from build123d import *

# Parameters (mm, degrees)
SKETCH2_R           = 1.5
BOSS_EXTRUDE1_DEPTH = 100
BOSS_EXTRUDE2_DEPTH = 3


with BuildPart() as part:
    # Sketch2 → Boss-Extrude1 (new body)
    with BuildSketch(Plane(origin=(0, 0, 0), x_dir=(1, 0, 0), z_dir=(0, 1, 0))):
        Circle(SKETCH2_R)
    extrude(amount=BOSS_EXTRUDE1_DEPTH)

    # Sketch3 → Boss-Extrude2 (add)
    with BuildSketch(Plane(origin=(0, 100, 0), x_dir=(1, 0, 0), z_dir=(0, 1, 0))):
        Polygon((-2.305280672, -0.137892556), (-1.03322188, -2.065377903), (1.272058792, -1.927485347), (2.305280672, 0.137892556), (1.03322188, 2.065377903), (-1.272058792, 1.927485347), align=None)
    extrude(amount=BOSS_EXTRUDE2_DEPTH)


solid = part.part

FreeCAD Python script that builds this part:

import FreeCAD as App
import Part
import Sketcher

V = App.Vector


def add_polygon(sketch, points):
    """Adds a closed chain of lines whose ends are joined by coincident constraints."""
    first, n = sketch.GeometryCount, len(points)
    for a, b in zip(points, points[1:] + points[:1]):
        sketch.addGeometry(Part.LineSegment(App.Vector(*a, 0), App.Vector(*b, 0)), False)
    for i in range(n):
        sketch.addConstraint(Sketcher.Constraint("Coincident", first + i, 2, first + (i + 1) % n, 1))

doc = App.newDocument("Part")
params = doc.addObject("Spreadsheet::Sheet", "Params")
for row, (alias, value) in enumerate([
    ("sketch1_diameter", "3 mm"),
    ("pad1_length", "100 mm"),
    ("pad2_length", "3 mm"),
], start=1):
    params.set(f"A{row}", alias)
    params.set(f"B{row}", "=" + value)
    params.setAlias(f"B{row}", alias)

body = doc.addObject("PartDesign::Body", "Body")

sketch1 = body.newObject("Sketcher::SketchObject", "Sketch")
sketch1.AttachmentSupport = (doc.getObject("XZ_Plane"), [""])
sketch1.MapMode = "FlatFace"
sketch1.addGeometry(Part.Circle(V(0, 0, 0), V(0, 0, 1), 1.5), False)
sketch1.addConstraint(Sketcher.Constraint("Coincident", 0, 3, -1, 1))
sketch1.addConstraint(Sketcher.Constraint("Diameter", 0, 3.0))
sketch1.setExpression("Constraints[1]", "Params.sketch1_diameter")
pad1 = body.newObject("PartDesign::Pad", "Pad")
pad1.Profile = sketch1
pad1.setExpression("Length", "Params.pad1_length")
pad1.Reversed = True

sketch2 = body.newObject("Sketcher::SketchObject", "Sketch001")
sketch2.AttachmentSupport = (doc.getObject("XZ_Plane"), [""])
sketch2.MapMode = "FlatFace"
sketch2.AttachmentOffset = App.Placement(V(0, 0, -100), App.Rotation())
add_polygon(sketch2, [(-2.3, 0.1), (-1, 2.1), (1.3, 1.9), (2.3, -0.1), (1, -2.1), (-1.3, -1.9)])
sketch2.addConstraint(Sketcher.Constraint("Symmetric", 0, 2, 3, 2, -1, 1))
sketch2.addConstraint(Sketcher.Constraint("Symmetric", 1, 2, 4, 2, -1, 1))
sketch2.addConstraint(Sketcher.Constraint("Symmetric", 2, 2, 5, 2, -1, 1))
sketch2.addConstraint(Sketcher.Constraint("Equal", 0, 1))
sketch2.addConstraint(Sketcher.Constraint("Equal", 1, 2))
sketch2.addConstraint(Sketcher.Constraint("Distance", 0, 2.309401))
sketch2.addConstraint(Sketcher.Constraint("DistanceX", 0, 2, -1, 1, 1.033222))
sketch2.addConstraint(Sketcher.Constraint("DistanceX", -1, 1, 1, 2, 1.272059))
sketch2.addConstraint(Sketcher.Constraint("DistanceX", -1, 1, 2, 2, 2.305281))
pad2 = body.newObject("PartDesign::Pad", "Pad001")
pad2.Profile = sketch2
pad2.setExpression("Length", "Params.pad2_length")
pad2.Reversed = True

doc.recompute()
